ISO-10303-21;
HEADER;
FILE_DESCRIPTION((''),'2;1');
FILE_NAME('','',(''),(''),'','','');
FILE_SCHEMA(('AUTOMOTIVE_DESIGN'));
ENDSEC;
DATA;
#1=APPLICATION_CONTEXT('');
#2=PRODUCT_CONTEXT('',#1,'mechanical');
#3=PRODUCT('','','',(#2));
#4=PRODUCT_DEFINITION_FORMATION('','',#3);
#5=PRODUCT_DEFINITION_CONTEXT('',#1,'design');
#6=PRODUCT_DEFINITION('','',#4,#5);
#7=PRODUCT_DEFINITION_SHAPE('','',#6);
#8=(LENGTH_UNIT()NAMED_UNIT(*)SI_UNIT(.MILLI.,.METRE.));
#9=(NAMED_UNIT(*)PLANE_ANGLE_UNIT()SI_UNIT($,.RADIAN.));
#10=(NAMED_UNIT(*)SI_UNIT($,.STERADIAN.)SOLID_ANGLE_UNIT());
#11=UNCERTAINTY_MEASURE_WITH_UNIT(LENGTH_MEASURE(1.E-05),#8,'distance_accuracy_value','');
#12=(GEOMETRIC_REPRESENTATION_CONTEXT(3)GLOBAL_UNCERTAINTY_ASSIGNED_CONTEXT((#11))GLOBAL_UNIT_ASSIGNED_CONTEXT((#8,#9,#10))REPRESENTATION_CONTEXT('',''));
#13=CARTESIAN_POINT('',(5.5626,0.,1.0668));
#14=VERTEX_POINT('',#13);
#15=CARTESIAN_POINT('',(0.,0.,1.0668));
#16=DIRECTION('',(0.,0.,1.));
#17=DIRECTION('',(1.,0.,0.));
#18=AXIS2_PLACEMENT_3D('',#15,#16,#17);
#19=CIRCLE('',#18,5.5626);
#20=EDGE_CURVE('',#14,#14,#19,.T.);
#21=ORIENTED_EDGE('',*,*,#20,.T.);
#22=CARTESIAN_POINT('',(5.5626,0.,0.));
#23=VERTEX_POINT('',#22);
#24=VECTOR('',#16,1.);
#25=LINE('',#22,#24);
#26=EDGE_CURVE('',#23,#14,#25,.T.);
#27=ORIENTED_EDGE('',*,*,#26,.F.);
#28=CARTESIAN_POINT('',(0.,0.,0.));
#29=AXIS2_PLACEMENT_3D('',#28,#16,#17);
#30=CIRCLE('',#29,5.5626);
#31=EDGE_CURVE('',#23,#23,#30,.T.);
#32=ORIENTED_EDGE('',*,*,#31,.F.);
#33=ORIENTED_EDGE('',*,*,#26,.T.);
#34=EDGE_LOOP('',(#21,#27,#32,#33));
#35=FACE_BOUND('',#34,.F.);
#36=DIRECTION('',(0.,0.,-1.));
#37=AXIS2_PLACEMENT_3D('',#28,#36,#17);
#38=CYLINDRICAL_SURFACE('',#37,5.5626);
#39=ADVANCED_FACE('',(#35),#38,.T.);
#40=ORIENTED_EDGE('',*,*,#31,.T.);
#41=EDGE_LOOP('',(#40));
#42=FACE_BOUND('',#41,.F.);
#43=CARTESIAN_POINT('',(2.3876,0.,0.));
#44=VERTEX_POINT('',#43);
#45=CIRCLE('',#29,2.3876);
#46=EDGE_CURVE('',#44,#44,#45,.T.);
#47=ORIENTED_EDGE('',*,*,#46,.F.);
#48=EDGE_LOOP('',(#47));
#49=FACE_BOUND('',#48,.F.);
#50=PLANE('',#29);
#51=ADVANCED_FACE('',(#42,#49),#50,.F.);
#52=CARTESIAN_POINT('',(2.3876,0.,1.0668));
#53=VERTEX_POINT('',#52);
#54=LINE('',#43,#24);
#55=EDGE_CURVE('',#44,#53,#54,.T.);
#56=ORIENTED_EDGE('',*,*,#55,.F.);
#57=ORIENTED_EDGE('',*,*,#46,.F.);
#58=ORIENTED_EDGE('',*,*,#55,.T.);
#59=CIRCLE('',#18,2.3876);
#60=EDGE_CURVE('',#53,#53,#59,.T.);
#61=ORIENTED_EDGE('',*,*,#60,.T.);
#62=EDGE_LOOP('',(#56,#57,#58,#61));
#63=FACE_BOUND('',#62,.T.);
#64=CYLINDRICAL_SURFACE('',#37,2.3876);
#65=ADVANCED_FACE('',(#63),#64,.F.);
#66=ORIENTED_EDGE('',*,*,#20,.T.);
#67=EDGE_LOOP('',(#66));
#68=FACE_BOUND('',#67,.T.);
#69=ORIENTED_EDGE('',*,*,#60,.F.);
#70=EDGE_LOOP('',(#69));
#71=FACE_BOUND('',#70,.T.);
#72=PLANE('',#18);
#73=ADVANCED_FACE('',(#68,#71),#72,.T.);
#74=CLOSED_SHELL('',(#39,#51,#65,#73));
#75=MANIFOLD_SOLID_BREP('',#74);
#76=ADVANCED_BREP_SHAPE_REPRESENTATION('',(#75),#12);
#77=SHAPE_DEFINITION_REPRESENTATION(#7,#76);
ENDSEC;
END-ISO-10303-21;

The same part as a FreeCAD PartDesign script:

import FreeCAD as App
import Part
import Sketcher
from FreeCAD import Vector
Q = App.Units.Quantity

doc = App.newDocument("Part")
body = doc.addObject("PartDesign::Body", "Body")

# Sketch on XY plane
sketch1 = doc.addObject("Sketcher::SketchObject", "Sketch")
body.addObject(sketch1)
sketch1.AttachmentSupport = (doc.XY_Plane, [""])
sketch1.MapMode = "FlatFace"
sketch1.addGeometry([
    Part.Circle(Vector(0, 0, 0), Vector(0, 0, 1), 5.6),
    Part.Circle(Vector(0, 0, 0), Vector(0, 0, 1), 2.4),
], False)
sketch1.addConstraint([
    Sketcher.Constraint("Coincident", 0, 3, -1, 1),
    Sketcher.Constraint("Coincident", 1, 3, -1, 1),
    Sketcher.Constraint("Diameter", 0, Q("0.438 in")),
    Sketcher.Constraint("Diameter", 1, Q("0.188 in")),
])
pad1 = doc.addObject("PartDesign::Pad", "Pad")
body.addObject(pad1)
pad1.Profile = sketch1
pad1.Length = Q("0.042 in")

doc.recompute()
